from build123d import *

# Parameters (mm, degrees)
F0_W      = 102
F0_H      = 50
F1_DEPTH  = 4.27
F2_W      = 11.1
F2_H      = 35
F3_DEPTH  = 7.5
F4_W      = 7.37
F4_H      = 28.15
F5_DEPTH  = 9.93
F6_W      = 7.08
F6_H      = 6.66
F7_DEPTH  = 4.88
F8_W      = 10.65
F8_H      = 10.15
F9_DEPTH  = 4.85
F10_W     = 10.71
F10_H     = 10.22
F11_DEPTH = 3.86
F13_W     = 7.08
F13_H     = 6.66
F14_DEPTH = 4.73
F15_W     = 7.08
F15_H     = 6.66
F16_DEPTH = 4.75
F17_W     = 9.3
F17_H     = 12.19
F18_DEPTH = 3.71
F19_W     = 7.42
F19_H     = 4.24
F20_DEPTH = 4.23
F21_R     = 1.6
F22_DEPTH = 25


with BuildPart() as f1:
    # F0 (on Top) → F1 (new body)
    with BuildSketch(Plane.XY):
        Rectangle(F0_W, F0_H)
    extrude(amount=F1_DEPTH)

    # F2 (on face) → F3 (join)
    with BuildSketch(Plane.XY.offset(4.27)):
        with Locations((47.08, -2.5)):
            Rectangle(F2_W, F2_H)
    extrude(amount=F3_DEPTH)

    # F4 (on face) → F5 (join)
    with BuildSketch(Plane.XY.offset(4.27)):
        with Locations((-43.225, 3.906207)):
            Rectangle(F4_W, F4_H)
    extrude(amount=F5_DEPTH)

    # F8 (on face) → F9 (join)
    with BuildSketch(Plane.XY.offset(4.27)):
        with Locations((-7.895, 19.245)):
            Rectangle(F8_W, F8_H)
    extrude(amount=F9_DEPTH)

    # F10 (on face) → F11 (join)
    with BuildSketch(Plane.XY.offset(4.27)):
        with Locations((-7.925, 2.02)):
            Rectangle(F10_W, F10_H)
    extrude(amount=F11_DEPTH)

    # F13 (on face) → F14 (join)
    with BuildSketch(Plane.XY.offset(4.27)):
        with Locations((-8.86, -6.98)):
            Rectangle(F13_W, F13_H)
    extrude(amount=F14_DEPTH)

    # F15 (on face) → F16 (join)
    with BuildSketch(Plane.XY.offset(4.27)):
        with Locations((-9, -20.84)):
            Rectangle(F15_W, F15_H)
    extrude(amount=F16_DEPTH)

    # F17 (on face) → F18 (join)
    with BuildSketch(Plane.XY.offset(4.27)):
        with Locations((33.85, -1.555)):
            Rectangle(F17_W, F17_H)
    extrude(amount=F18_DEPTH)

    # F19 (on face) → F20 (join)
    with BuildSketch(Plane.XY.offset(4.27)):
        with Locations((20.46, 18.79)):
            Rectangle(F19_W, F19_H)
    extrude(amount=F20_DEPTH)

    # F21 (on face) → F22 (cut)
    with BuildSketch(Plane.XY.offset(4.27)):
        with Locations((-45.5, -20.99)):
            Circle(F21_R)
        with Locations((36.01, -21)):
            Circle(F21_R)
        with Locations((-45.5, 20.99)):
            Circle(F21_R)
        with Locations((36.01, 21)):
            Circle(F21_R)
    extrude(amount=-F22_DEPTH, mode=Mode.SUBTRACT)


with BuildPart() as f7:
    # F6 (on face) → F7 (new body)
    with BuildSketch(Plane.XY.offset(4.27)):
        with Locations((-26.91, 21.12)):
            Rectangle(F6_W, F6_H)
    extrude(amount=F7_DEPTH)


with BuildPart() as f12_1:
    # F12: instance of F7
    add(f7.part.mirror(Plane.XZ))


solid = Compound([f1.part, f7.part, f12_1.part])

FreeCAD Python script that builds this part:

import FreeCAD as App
import Part
import Sketcher
from FreeCAD import Vector
Q = App.Units.Quantity

doc = App.newDocument("Part")
params = doc.addObject("Spreadsheet::Sheet", "Params")
for row, (alias, value) in enumerate([
    ("sketch1_width", "102 mm"),
    ("sketch1_height", "50 mm"),
    ("pad1_length", "4.27 mm"),
    ("sketch2_height", "35 mm"),
    ("sketch2_width", "11.1 mm"),
    ("pad2_length", "7.5 mm"),
    ("sketch3_width", "7.37 mm"),
    ("sketch3_height", "28.15 mm"),
    ("pad3_length", "9.93 mm"),
    ("sketch4_width", "10.65 mm"),
    ("sketch4_height", "10.15 mm"),
    ("pad4_length", "4.85 mm"),
    ("sketch5_width", "10.71 mm"),
    ("sketch5_height", "10.22 mm"),
    ("pad5_length", "3.86 mm"),
    ("sketch6_width", "7.08 mm"),
    ("sketch6_height", "6.66 mm"),
    ("pad6_length", "4.73 mm"),
    ("sketch7_width", "7.08 mm"),
    ("sketch7_height", "6.66 mm"),
    ("pad7_length", "4.75 mm"),
    ("sketch8_width", "9.3 mm"),
    ("sketch8_height", "12.19 mm"),
    ("pad8_length", "3.71 mm"),
    ("sketch9_width", "7.42 mm"),
    ("sketch9_height", "4.24 mm"),
    ("pad9_length", "4.23 mm"),
    ("sketch10_diameter", "3.2 mm"),
    ("pocket1_length", "25 mm"),
    ("sketch11_width", "7.08 mm"),
    ("sketch11_height", "6.66 mm"),
    ("pad10_length", "4.88 mm"),
], start=1):
    params.set(f"A{row}", alias)
    params.set(f"B{row}", "=" + value)
    params.setAlias(f"B{row}", alias)

body = doc.addObject("PartDesign::Body", "Body")

sketch1 = body.newObject("Sketcher::SketchObject", "Sketch")
sketch1.AttachmentSupport = (doc.getObject("XY_Plane"), [""])
sketch1.MapMode = "FlatFace"
sketch1.addGeometry([
    Part.LineSegment(Vector(-51, 25, 0), Vector(-51, -25, 0)),
    Part.LineSegment(Vector(-51, -25, 0), Vector(51, -25, 0)),
    Part.LineSegment(Vector(51, -25, 0), Vector(51, 25, 0)),
    Part.LineSegment(Vector(51, 25, 0), Vector(-51, 25, 0)),
], False)
sketch1.addConstraint([
    Sketcher.Constraint("Coincident", 0, 2, 1, 1),
    Sketcher.Constraint("Coincident", 1, 2, 2, 1),
    Sketcher.Constraint("Coincident", 2, 2, 3, 1),
    Sketcher.Constraint("Coincident", 3, 2, 0, 1),
    Sketcher.Constraint("Vertical", 0),
    Sketcher.Constraint("Horizontal", 1),
    Sketcher.Constraint("Vertical", 2),
    Sketcher.Constraint("Horizontal", 3),
    Sketcher.Constraint("Symmetric", 0, 2, 2, 2, -1, 1),
    Sketcher.Constraint("DistanceX", 1, 1, 1, 2, Q("102 mm")),
    Sketcher.Constraint("DistanceY", 0, 2, 0, 1, Q("50 mm")),
])
sketch1.setExpression("Constraints[9]", "Params.sketch1_width")
sketch1.setExpression("Constraints[10]", "Params.sketch1_height")
pad1 = body.newObject("PartDesign::Pad", "Pad")
pad1.Profile = sketch1
pad1.setExpression("Length", "Params.pad1_length")

sketch2 = body.newObject("Sketcher::SketchObject", "Sketch001")
sketch2.AttachmentSupport = (doc.getObject("XY_Plane"), [""])
sketch2.MapMode = "FlatFace"
sketch2.AttachmentOffset = App.Placement(Vector(0, 0, 4.27), App.Rotation())
sketch2.addGeometry([
    Part.LineSegment(Vector(42, 15, 0), Vector(42, -20, 0)),
    Part.LineSegment(Vector(42, -20, 0), Vector(53, -20, 0)),
    Part.LineSegment(Vector(53, -20, 0), Vector(53, 15, 0)),
    Part.LineSegment(Vector(53, 15, 0), Vector(42, 15, 0)),
], False)
sketch2.addConstraint([
    Sketcher.Constraint("Coincident", 0, 2, 1, 1),
    Sketcher.Constraint("Coincident", 1, 2, 2, 1),
    Sketcher.Constraint("Coincident", 2, 2, 3, 1),
    Sketcher.Constraint("Coincident", 3, 2, 0, 1),
    Sketcher.Constraint("Vertical", 0),
    Sketcher.Constraint("Horizontal", 1),
    Sketcher.Constraint("Vertical", 2),
    Sketcher.Constraint("Horizontal", 3),
    Sketcher.Constraint("DistanceY", 0, 2, 0, 1, Q("35 mm")),
    Sketcher.Constraint("DistanceX", 1, 1, 1, 2, Q("11.1 mm")),
    Sketcher.Constraint("DistanceY", 0, 2, -1, 1, Q("20 mm")),
    Sketcher.Constraint("DistanceX", -1, 1, 0, 2, Q("41.53 mm")),
])
sketch2.setExpression("Constraints[8]", "Params.sketch2_height")
sketch2.setExpression("Constraints[9]", "Params.sketch2_width")
pad2 = body.newObject("PartDesign::Pad", "Pad001")
pad2.Profile = sketch2
pad2.setExpression("Length", "Params.pad2_length")

sketch3 = body.newObject("Sketcher::SketchObject", "Sketch002")
sketch3.AttachmentSupport = (doc.getObject("XY_Plane"), [""])
sketch3.MapMode = "FlatFace"
sketch3.AttachmentOffset = App.Placement(Vector(0, 0, 4.27), App.Rotation())
sketch3.addGeometry([
    Part.LineSegment(Vector(-47, 18, 0), Vector(-47, -10, 0)),
    Part.LineSegment(Vector(-47, -10, 0), Vector(-40, -10, 0)),
    Part.LineSegment(Vector(-40, -10, 0), Vector(-40, 18, 0)),
    Part.LineSegment(Vector(-40, 18, 0), Vector(-47, 18, 0)),
], False)
sketch3.addConstraint([
    Sketcher.Constraint("Coincident", 0, 2, 1, 1),
    Sketcher.Constraint("Coincident", 1, 2, 2, 1),
    Sketcher.Constraint("Coincident", 2, 2, 3, 1),
    Sketcher.Constraint("Coincident", 3, 2, 0, 1),
    Sketcher.Constraint("Vertical", 0),
    Sketcher.Constraint("Horizontal", 1),
    Sketcher.Constraint("Vertical", 2),
    Sketcher.Constraint("Horizontal", 3),
    Sketcher.Constraint("DistanceX", 1, 1, 1, 2, Q("7.37 mm")),
    Sketcher.Constraint("DistanceY", 0, 2, 0, 1, Q("28.15 mm")),
    Sketcher.Constraint("DistanceX", 0, 2, -1, 1, Q("46.91 mm")),
    Sketcher.Constraint("DistanceY", 0, 2, -1, 1, Q("10.168793 mm")),
])
sketch3.setExpression("Constraints[8]", "Params.sketch3_width")
sketch3.setExpression("Constraints[9]", "Params.sketch3_height")
pad3 = body.newObject("PartDesign::Pad", "Pad002")
pad3.Profile = sketch3
pad3.setExpression("Length", "Params.pad3_length")

sketch4 = body.newObject("Sketcher::SketchObject", "Sketch003")
sketch4.AttachmentSupport = (doc.getObject("XY_Plane"), [""])
sketch4.MapMode = "FlatFace"
sketch4.AttachmentOffset = App.Placement(Vector(0, 0, 4.27), App.Rotation())
sketch4.addGeometry([
    Part.LineSegment(Vector(-13, 24, 0), Vector(-13, 14, 0)),
    Part.LineSegment(Vector(-13, 14, 0), Vector(-3, 14, 0)),
    Part.LineSegment(Vector(-3, 14, 0), Vector(-3, 24, 0)),
    Part.LineSegment(Vector(-3, 24, 0), Vector(-13, 24, 0)),
], False)
sketch4.addConstraint([
    Sketcher.Constraint("Coincident", 0, 2, 1, 1),
    Sketcher.Constraint("Coincident", 1, 2, 2, 1),
    Sketcher.Constraint("Coincident", 2, 2, 3, 1),
    Sketcher.Constraint("Coincident", 3, 2, 0, 1),
    Sketcher.Constraint("Vertical", 0),
    Sketcher.Constraint("Horizontal", 1),
    Sketcher.Constraint("Vertical", 2),
    Sketcher.Constraint("Horizontal", 3),
    Sketcher.Constraint("DistanceX", 1, 1, 1, 2, Q("10.65 mm")),
    Sketcher.Constraint("DistanceY", 0, 2, 0, 1, Q("10.15 mm")),
    Sketcher.Constraint("DistanceX", 0, 2, -1, 1, Q("13.22 mm")),
    Sketcher.Constraint("DistanceY", -1, 1, 0, 2, Q("14.17 mm")),
])
sketch4.setExpression("Constraints[8]", "Params.sketch4_width")
sketch4.setExpression("Constraints[9]", "Params.sketch4_height")
pad4 = body.newObject("PartDesign::Pad", "Pad003")
pad4.Profile = sketch4
pad4.setExpression("Length", "Params.pad4_length")

sketch5 = body.newObject("Sketcher::SketchObject", "Sketch004")
sketch5.AttachmentSupport = (doc.getObject("XY_Plane"), [""])
sketch5.MapMode = "FlatFace"
sketch5.AttachmentOffset = App.Placement(Vector(0, 0, 4.27), App.Rotation())
sketch5.addGeometry([
    Part.LineSegment(Vector(-13, 7, 0), Vector(-13, -3, 0)),
    Part.LineSegment(Vector(-13, -3, 0), Vector(-3, -3, 0)),
    Part.LineSegment(Vector(-3, -3, 0), Vector(-3, 7, 0)),
    Part.LineSegment(Vector(-3, 7, 0), Vector(-13, 7, 0)),
], False)
sketch5.addConstraint([
    Sketcher.Constraint("Coincident", 0, 2, 1, 1),
    Sketcher.Constraint("Coincident", 1, 2, 2, 1),
    Sketcher.Constraint("Coincident", 2, 2, 3, 1),
    Sketcher.Constraint("Coincident", 3, 2, 0, 1),
    Sketcher.Constraint("Vertical", 0),
    Sketcher.Constraint("Horizontal", 1),
    Sketcher.Constraint("Vertical", 2),
    Sketcher.Constraint("Horizontal", 3),
    Sketcher.Constraint("DistanceX", 1, 1, 1, 2, Q("10.71 mm")),
    Sketcher.Constraint("DistanceY", 0, 2, 0, 1, Q("10.22 mm")),
    Sketcher.Constraint("DistanceX", 0, 2, -1, 1, Q("13.28 mm")),
    Sketcher.Constraint("DistanceY", 0, 2, -1, 1, Q("3.09 mm")),
])
sketch5.setExpression("Constraints[8]", "Params.sketch5_width")
sketch5.setExpression("Constraints[9]", "Params.sketch5_height")
pad5 = body.newObject("PartDesign::Pad", "Pad004")
pad5.Profile = sketch5
pad5.setExpression("Length", "Params.pad5_length")

sketch6 = body.newObject("Sketcher::SketchObject", "Sketch005")
sketch6.AttachmentSupport = (doc.getObject("XY_Plane"), [""])
sketch6.MapMode = "FlatFace"
sketch6.AttachmentOffset = App.Placement(Vector(0, 0, 4.27), App.Rotation())
sketch6.addGeometry([
    Part.LineSegment(Vector(-12, -4, 0), Vector(-12, -10, 0)),
    Part.LineSegment(Vector(-12, -10, 0), Vector(-5, -10, 0)),
    Part.LineSegment(Vector(-5, -10, 0), Vector(-5, -4, 0)),
    Part.LineSegment(Vector(-5, -4, 0), Vector(-12, -4, 0)),
], False)
sketch6.addConstraint([
    Sketcher.Constraint("Coincident", 0, 2, 1, 1),
    Sketcher.Constraint("Coincident", 1, 2, 2, 1),
    Sketcher.Constraint("Coincident", 2, 2, 3, 1),
    Sketcher.Constraint("Coincident", 3, 2, 0, 1),
    Sketcher.Constraint("Vertical", 0),
    Sketcher.Constraint("Horizontal", 1),
    Sketcher.Constraint("Vertical", 2),
    Sketcher.Constraint("Horizontal", 3),
    Sketcher.Constraint("DistanceX", 1, 1, 1, 2, Q("7.08 mm")),
    Sketcher.Constraint("DistanceY", 0, 2, 0, 1, Q("6.66 mm")),
    Sketcher.Constraint("DistanceX", 0, 2, -1, 1, Q("12.4 mm")),
    Sketcher.Constraint("DistanceY", 0, 2, -1, 1, Q("10.31 mm")),
])
sketch6.setExpression("Constraints[8]", "Params.sketch6_width")
sketch6.setExpression("Constraints[9]", "Params.sketch6_height")
pad6 = body.newObject("PartDesign::Pad", "Pad005")
pad6.Profile = sketch6
pad6.setExpression("Length", "Params.pad6_length")

sketch7 = body.newObject("Sketcher::SketchObject", "Sketch006")
sketch7.AttachmentSupport = (doc.getObject("XY_Plane"), [""])
sketch7.MapMode = "FlatFace"
sketch7.AttachmentOffset = App.Placement(Vector(0, 0, 4.27), App.Rotation())
sketch7.addGeometry([
    Part.LineSegment(Vector(-13, -18, 0), Vector(-13, -24, 0)),
    Part.LineSegment(Vector(-13, -24, 0), Vector(-5, -24, 0)),
    Part.LineSegment(Vector(-5, -24, 0), Vector(-5, -18, 0)),
    Part.LineSegment(Vector(-5, -18, 0), Vector(-13, -18, 0)),
], False)
sketch7.addConstraint([
    Sketcher.Constraint("Coincident", 0, 2, 1, 1),
    Sketcher.Constraint("Coincident", 1, 2, 2, 1),
    Sketcher.Constraint("Coincident", 2, 2, 3, 1),
    Sketcher.Constraint("Coincident", 3, 2, 0, 1),
    Sketcher.Constraint("Vertical", 0),
    Sketcher.Constraint("Horizontal", 1),
    Sketcher.Constraint("Vertical", 2),
    Sketcher.Constraint("Horizontal", 3),
    Sketcher.Constraint("DistanceX", 1, 1, 1, 2, Q("7.08 mm")),
    Sketcher.Constraint("DistanceY", 0, 2, 0, 1, Q("6.66 mm")),
    Sketcher.Constraint("DistanceX", 0, 2, -1, 1, Q("12.54 mm")),
    Sketcher.Constraint("DistanceY", 0, 2, -1, 1, Q("24.17 mm")),
])
sketch7.setExpression("Constraints[8]", "Params.sketch7_width")
sketch7.setExpression("Constraints[9]", "Params.sketch7_height")
pad7 = body.newObject("PartDesign::Pad", "Pad006")
pad7.Profile = sketch7
pad7.setExpression("Length", "Params.pad7_length")

sketch8 = body.newObject("Sketcher::SketchObject", "Sketch007")
sketch8.AttachmentSupport = (doc.getObject("XY_Plane"), [""])
sketch8.MapMode = "FlatFace"
sketch8.AttachmentOffset = App.Placement(Vector(0, 0, 4.27), App.Rotation())
sketch8.addGeometry([
    Part.LineSegment(Vector(29, 5, 0), Vector(29, -8, 0)),
    Part.LineSegment(Vector(29, -8, 0), Vector(38, -8, 0)),
    Part.LineSegment(Vector(38, -8, 0), Vector(38, 5, 0)),
    Part.LineSegment(Vector(38, 5, 0), Vector(29, 5, 0)),
], False)
sketch8.addConstraint([
    Sketcher.Constraint("Coincident", 0, 2, 1, 1),
    Sketcher.Constraint("Coincident", 1, 2, 2, 1),
    Sketcher.Constraint("Coincident", 2, 2, 3, 1),
    Sketcher.Constraint("Coincident", 3, 2, 0, 1),
    Sketcher.Constraint("Vertical", 0),
    Sketcher.Constraint("Horizontal", 1),
    Sketcher.Constraint("Vertical", 2),
    Sketcher.Constraint("Horizontal", 3),
    Sketcher.Constraint("DistanceX", 1, 1, 1, 2, Q("9.3 mm")),
    Sketcher.Constraint("DistanceY", 0, 2, 0, 1, Q("12.19 mm")),
    Sketcher.Constraint("DistanceX", -1, 1, 0, 2, Q("29.2 mm")),
    Sketcher.Constraint("DistanceY", 0, 2, -1, 1, Q("7.65 mm")),
])
sketch8.setExpression("Constraints[8]", "Params.sketch8_width")
sketch8.setExpression("Constraints[9]", "Params.sketch8_height")
pad8 = body.newObject("PartDesign::Pad", "Pad007")
pad8.Profile = sketch8
pad8.setExpression("Length", "Params.pad8_length")

sketch9 = body.newObject("Sketcher::SketchObject", "Sketch008")
sketch9.AttachmentSupport = (doc.getObject("XY_Plane"), [""])
sketch9.MapMode = "FlatFace"
sketch9.AttachmentOffset = App.Placement(Vector(0, 0, 4.27), App.Rotation())
sketch9.addGeometry([
    Part.LineSegment(Vector(16.8, 20.9, 0), Vector(16.8, 16.7, 0)),
    Part.LineSegment(Vector(16.8, 16.7, 0), Vector(24.2, 16.7, 0)),
    Part.LineSegment(Vector(24.2, 16.7, 0), Vector(24.2, 20.9, 0)),
    Part.LineSegment(Vector(24.2, 20.9, 0), Vector(16.8, 20.9, 0)),
], False)
sketch9.addConstraint([
    Sketcher.Constraint("Coincident", 0, 2, 1, 1),
    Sketcher.Constraint("Coincident", 1, 2, 2, 1),
    Sketcher.Constraint("Coincident", 2, 2, 3, 1),
    Sketcher.Constraint("Coincident", 3, 2, 0, 1),
    Sketcher.Constraint("Vertical", 0),
    Sketcher.Constraint("Horizontal", 1),
    Sketcher.Constraint("Vertical", 2),
    Sketcher.Constraint("Horizontal", 3),
    Sketcher.Constraint("DistanceX", 1, 1, 1, 2, Q("7.42 mm")),
    Sketcher.Constraint("DistanceY", 0, 2, 0, 1, Q("4.24 mm")),
    Sketcher.Constraint("DistanceX", -1, 1, 0, 2, Q("16.75 mm")),
    Sketcher.Constraint("DistanceY", -1, 1, 0, 2, Q("16.67 mm")),
])
sketch9.setExpression("Constraints[8]", "Params.sketch9_width")
sketch9.setExpression("Constraints[9]", "Params.sketch9_height")
pad9 = body.newObject("PartDesign::Pad", "Pad008")
pad9.Profile = sketch9
pad9.setExpression("Length", "Params.pad9_length")

sketch10 = body.newObject("Sketcher::SketchObject", "Sketch009")
sketch10.AttachmentSupport = (doc.getObject("XY_Plane"), [""])
sketch10.MapMode = "FlatFace"
sketch10.AttachmentOffset = App.Placement(Vector(0, 0, 4.27), App.Rotation())
sketch10.addGeometry([
    Part.Circle(Vector(-45.5, -21, 0), Vector(0, 0, 1), 1.6),
    Part.Circle(Vector(36, -21, 0), Vector(0, 0, 1), 1.6),
    Part.Circle(Vector(-45.5, 21, 0), Vector(0, 0, 1), 1.6),
    Part.Circle(Vector(36, 21, 0), Vector(0, 0, 1), 1.6),
], False)
sketch10.addConstraint([
    Sketcher.Constraint("Equal", 0, 1),
    Sketcher.Constraint("Equal", 1, 2),
    Sketcher.Constraint("Equal", 2, 3),
    Sketcher.Constraint("Symmetric", 0, 3, 2, 3, -1),
    Sketcher.Constraint("Symmetric", 1, 3, 3, 3, -1),
    Sketcher.Constraint("Diameter", 0, Q("3.2 mm")),
    Sketcher.Constraint("DistanceY", 1, 3, -1, 1, Q("21 mm")),
    Sketcher.Constraint("DistanceX", 0, 3, -1, 1, Q("45.5 mm")),
    Sketcher.Constraint("DistanceY", 0, 3, -1, 1, Q("20.99 mm")),
    Sketcher.Constraint("DistanceX", -1, 1, 1, 3, Q("36.01 mm")),
])
sketch10.setExpression("Constraints[5]", "Params.sketch10_diameter")
pocket1 = body.newObject("PartDesign::Pocket", "Pocket")
pocket1.Profile = sketch10
pocket1.setExpression("Length", "Params.pocket1_length")
body2 = doc.addObject("PartDesign::Body", "Body001")

sketch11 = body2.newObject("Sketcher::SketchObject", "Sketch010")
sketch11.AttachmentSupport = (doc.getObject("XY_Plane001"), [""])
sketch11.MapMode = "FlatFace"
sketch11.AttachmentOffset = App.Placement(Vector(0, 0, 4.27), App.Rotation())
sketch11.addGeometry([
    Part.LineSegment(Vector(-30, 24, 0), Vector(-30, 18, 0)),
    Part.LineSegment(Vector(-30, 18, 0), Vector(-23, 18, 0)),
    Part.LineSegment(Vector(-23, 18, 0), Vector(-23, 24, 0)),
    Part.LineSegment(Vector(-23, 24, 0), Vector(-30, 24, 0)),
], False)
sketch11.addConstraint([
    Sketcher.Constraint("Coincident", 0, 2, 1, 1),
    Sketcher.Constraint("Coincident", 1, 2, 2, 1),
    Sketcher.Constraint("Coincident", 2, 2, 3, 1),
    Sketcher.Constraint("Coincident", 3, 2, 0, 1),
    Sketcher.Constraint("Vertical", 0),
    Sketcher.Constraint("Horizontal", 1),
    Sketcher.Constraint("Vertical", 2),
    Sketcher.Constraint("Horizontal", 3),
    Sketcher.Constraint("DistanceX", 1, 1, 1, 2, Q("7.08 mm")),
    Sketcher.Constraint("DistanceY", 0, 2, 0, 1, Q("6.66 mm")),
    Sketcher.Constraint("DistanceX", 0, 2, -1, 1, Q("30.45 mm")),
    Sketcher.Constraint("DistanceY", -1, 1, 0, 2, Q("17.79 mm")),
])
sketch11.setExpression("Constraints[8]", "Params.sketch11_width")
sketch11.setExpression("Constraints[9]", "Params.sketch11_height")
pad10 = body2.newObject("PartDesign::Pad", "Pad009")
pad10.Profile = sketch11
pad10.setExpression("Length", "Params.pad10_length")
body3 = doc.addObject("PartDesign::Body", "Body002")
doc.recompute()

mirroring = doc.addObject("Part::Mirroring", "Mirroring")
mirroring.Source = body2
mirroring.Base = Vector(0, 0, 0)
mirroring.Normal = Vector(0, -1, 0)
body3.BaseFeature = mirroring
doc.recompute()
mirroring.Visibility = False

doc.recompute()
